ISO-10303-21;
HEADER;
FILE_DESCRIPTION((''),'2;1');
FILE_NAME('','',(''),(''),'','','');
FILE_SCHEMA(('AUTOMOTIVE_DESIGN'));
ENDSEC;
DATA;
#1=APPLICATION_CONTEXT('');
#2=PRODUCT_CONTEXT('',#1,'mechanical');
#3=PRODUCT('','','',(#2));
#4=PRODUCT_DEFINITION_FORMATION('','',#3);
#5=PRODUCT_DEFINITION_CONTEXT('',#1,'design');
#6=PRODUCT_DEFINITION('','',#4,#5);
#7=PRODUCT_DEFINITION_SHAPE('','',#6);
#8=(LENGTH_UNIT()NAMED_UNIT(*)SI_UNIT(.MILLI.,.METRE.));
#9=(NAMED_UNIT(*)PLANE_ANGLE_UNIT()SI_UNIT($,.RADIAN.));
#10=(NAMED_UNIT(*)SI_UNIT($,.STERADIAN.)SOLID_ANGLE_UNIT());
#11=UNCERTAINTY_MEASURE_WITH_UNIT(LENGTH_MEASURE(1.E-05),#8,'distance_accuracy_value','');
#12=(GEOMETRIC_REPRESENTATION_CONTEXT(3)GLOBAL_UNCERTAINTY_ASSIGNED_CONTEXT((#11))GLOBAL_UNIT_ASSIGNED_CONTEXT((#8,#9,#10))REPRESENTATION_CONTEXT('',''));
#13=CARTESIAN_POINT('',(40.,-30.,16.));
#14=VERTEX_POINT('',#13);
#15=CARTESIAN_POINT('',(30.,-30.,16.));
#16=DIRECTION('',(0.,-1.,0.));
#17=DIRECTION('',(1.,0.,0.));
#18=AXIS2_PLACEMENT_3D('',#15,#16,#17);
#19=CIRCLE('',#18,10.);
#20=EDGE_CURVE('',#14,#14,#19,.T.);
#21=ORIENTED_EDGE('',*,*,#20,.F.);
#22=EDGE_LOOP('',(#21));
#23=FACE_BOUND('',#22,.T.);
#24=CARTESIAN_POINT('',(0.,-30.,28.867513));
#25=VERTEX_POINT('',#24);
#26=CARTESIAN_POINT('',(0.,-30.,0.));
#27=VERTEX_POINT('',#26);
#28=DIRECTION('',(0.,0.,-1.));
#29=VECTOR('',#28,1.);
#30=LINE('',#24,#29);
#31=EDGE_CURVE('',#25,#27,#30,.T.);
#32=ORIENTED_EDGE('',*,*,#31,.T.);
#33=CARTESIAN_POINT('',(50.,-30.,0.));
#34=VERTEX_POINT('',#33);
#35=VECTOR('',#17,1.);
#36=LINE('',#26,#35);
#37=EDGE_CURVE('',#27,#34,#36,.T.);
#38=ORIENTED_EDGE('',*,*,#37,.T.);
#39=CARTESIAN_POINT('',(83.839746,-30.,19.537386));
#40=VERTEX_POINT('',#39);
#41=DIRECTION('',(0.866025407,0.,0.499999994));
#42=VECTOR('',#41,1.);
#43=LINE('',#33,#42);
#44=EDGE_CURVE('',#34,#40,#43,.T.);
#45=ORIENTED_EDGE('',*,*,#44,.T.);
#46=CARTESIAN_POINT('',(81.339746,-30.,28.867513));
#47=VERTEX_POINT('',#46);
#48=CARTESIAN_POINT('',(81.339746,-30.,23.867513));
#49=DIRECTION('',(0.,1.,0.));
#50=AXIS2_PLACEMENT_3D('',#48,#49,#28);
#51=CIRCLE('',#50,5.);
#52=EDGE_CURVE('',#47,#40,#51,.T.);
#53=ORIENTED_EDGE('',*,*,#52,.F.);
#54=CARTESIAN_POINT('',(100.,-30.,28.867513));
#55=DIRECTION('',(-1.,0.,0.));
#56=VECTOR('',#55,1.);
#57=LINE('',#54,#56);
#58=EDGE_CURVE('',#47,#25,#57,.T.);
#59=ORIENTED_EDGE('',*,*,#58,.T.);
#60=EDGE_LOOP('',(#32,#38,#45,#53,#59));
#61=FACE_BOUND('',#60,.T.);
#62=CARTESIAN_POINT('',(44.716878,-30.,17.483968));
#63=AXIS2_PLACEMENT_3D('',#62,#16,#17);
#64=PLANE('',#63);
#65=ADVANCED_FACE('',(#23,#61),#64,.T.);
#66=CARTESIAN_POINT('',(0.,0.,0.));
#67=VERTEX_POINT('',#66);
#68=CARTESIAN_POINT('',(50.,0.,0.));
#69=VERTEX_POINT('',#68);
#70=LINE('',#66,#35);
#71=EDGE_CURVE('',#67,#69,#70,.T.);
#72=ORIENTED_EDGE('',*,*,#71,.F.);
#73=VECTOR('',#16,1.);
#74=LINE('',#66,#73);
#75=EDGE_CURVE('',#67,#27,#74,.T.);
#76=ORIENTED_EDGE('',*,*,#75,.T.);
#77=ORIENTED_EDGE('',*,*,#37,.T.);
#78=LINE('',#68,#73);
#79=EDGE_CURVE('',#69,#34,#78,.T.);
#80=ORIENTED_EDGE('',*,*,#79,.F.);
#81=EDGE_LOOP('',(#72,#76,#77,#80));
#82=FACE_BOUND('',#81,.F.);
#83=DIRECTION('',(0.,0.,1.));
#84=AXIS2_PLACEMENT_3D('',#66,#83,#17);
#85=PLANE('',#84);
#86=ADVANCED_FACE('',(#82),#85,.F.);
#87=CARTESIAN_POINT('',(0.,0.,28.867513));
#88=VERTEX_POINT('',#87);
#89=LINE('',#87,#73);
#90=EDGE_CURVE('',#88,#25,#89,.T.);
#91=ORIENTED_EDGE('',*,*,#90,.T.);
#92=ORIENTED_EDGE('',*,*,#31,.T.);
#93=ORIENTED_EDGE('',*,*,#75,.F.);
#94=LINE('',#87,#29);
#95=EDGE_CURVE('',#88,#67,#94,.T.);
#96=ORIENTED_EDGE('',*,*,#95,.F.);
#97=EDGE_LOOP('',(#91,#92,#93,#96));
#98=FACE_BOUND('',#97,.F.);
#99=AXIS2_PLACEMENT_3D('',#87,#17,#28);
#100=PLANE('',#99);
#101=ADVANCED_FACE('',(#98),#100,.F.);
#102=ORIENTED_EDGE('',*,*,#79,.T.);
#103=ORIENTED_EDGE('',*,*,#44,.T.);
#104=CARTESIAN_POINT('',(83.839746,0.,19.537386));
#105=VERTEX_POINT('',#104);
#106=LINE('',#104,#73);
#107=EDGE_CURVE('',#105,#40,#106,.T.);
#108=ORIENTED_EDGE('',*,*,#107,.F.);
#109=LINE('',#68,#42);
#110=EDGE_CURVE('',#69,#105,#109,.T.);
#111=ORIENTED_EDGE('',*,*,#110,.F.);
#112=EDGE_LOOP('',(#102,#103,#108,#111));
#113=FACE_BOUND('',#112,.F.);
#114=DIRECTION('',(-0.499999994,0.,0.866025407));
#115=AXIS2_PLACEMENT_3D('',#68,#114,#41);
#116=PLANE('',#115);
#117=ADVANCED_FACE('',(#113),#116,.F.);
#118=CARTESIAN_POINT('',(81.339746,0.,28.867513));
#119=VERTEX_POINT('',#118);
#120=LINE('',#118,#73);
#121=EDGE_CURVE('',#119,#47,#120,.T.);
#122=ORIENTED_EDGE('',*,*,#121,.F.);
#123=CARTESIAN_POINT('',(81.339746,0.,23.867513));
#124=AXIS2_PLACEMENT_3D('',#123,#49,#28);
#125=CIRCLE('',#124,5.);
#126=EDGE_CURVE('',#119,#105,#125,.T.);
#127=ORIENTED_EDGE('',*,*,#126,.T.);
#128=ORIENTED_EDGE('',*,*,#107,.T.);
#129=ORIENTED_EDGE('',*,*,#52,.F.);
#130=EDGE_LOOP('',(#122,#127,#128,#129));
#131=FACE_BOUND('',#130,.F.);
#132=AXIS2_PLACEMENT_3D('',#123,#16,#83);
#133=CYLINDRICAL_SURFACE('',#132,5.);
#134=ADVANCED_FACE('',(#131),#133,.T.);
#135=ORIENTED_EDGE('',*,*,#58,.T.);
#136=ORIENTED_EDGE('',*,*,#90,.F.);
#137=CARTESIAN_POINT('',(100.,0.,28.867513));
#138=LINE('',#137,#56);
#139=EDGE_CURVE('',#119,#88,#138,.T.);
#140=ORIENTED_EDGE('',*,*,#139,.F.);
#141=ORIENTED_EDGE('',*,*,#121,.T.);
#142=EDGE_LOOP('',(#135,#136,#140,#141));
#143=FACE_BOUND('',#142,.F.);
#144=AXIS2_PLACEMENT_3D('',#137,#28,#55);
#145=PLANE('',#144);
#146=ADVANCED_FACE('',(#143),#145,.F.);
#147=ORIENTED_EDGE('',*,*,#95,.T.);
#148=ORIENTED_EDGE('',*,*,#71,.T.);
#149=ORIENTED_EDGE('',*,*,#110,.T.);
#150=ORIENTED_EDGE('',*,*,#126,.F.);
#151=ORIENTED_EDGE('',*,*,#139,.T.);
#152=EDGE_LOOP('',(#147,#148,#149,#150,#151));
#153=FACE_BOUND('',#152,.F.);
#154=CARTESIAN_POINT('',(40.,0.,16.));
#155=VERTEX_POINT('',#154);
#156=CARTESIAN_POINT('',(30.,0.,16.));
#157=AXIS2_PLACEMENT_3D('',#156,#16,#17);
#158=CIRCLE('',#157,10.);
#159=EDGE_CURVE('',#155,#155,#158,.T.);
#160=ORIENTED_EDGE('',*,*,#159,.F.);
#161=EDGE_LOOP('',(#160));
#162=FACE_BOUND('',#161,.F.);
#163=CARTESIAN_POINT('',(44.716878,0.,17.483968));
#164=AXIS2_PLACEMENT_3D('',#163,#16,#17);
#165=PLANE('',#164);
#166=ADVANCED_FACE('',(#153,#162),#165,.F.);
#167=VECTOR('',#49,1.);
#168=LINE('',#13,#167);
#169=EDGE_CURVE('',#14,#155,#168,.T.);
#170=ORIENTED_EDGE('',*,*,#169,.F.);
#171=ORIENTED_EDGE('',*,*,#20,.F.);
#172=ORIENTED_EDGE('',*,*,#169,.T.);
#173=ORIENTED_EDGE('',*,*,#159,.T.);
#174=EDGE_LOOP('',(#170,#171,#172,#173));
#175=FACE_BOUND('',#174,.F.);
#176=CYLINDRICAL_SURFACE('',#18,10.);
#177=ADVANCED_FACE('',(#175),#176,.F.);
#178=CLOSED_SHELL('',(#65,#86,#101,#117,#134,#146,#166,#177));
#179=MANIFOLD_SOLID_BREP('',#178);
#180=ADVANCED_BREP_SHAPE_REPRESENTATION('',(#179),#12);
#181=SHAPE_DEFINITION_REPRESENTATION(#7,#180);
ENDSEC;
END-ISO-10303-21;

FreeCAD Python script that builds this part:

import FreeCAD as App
import Part
import Sketcher
Q = App.Units.Quantity


def edges_at(feature, points):
    """Names of the edges that pass closest to the given points."""
    edges = feature.Shape.Edges
    near = lambda p: min(range(len(edges)), key=lambda i: edges[i].distToShape(Part.Vertex(*p))[0])
    return sorted({f"Edge{near(p) + 1}" for p in points})

doc = App.newDocument("Part")
body = doc.addObject("PartDesign::Body", "Body")

# Sketch on XZ plane
sketch1 = body.newObject("Sketcher::SketchObject", "Sketch")
sketch1.AttachmentSupport = (doc.getObject("XZ_Plane"), [""])
sketch1.MapMode = "FlatFace"
sketch1.addGeometry([
    Part.LineSegment(App.Vector(0, 29, 0), App.Vector(0, 0, 0)),
    Part.LineSegment(App.Vector(0, 0, 0), App.Vector(50, 0, 0)),
    Part.LineSegment(App.Vector(50, 0, 0), App.Vector(100, 29, 0)),
    Part.LineSegment(App.Vector(100, 29, 0), App.Vector(0, 29, 0)),
], False)
sketch1.addConstraint([
    Sketcher.Constraint("Coincident", 0, 2, 1, 1),
    Sketcher.Constraint("Coincident", 1, 2, 2, 1),
    Sketcher.Constraint("Coincident", 2, 2, 3, 1),
    Sketcher.Constraint("Coincident", 3, 2, 0, 1),
    Sketcher.Constraint("Vertical", 0),
    Sketcher.Constraint("Horizontal", 1),
    Sketcher.Constraint("Horizontal", 3),
    Sketcher.Constraint("Coincident", 0, 2, -1, 1),
    Sketcher.Constraint("DistanceX", 1, 1, 1, 2, 50.0),
    Sketcher.Constraint("DistanceX", 3, 2, 3, 1, 100.0),
    Sketcher.Constraint("Angle", 2, Q("30 deg")),
])
pad1 = body.newObject("PartDesign::Pad", "Pad")
pad1.Profile = sketch1
pad1.Length = 30

# Sketch on XZ plane
sketch2 = body.newObject("Sketcher::SketchObject", "Sketch001")
sketch2.AttachmentSupport = (doc.getObject("XZ_Plane"), [""])
sketch2.MapMode = "FlatFace"
sketch2.AttachmentOffset = App.Placement(App.Vector(0, 0, 30), App.Rotation())
sketch2.addGeometry(Part.Circle(App.Vector(30, 16, 0), App.Vector(0, 0, 1), 10), False)
sketch2.addConstraint([
    Sketcher.Constraint("Diameter", 0, 20.0),
    Sketcher.Constraint("DistanceX", -1, 1, 0, 3, 30.0),
    Sketcher.Constraint("DistanceY", -1, 1, 0, 3, 16.0),
])
pocket1 = body.newObject("PartDesign::Pocket", "Pocket")
pocket1.Profile = sketch2
pocket1.Type = "ThroughAll"
doc.recompute()

fillet = body.newObject("PartDesign::Fillet", "Fillet")
fillet.Base = (pocket1, edges_at(pocket1, [(100, -15, 28.868)]))
fillet.Radius = 5

doc.recompute()
